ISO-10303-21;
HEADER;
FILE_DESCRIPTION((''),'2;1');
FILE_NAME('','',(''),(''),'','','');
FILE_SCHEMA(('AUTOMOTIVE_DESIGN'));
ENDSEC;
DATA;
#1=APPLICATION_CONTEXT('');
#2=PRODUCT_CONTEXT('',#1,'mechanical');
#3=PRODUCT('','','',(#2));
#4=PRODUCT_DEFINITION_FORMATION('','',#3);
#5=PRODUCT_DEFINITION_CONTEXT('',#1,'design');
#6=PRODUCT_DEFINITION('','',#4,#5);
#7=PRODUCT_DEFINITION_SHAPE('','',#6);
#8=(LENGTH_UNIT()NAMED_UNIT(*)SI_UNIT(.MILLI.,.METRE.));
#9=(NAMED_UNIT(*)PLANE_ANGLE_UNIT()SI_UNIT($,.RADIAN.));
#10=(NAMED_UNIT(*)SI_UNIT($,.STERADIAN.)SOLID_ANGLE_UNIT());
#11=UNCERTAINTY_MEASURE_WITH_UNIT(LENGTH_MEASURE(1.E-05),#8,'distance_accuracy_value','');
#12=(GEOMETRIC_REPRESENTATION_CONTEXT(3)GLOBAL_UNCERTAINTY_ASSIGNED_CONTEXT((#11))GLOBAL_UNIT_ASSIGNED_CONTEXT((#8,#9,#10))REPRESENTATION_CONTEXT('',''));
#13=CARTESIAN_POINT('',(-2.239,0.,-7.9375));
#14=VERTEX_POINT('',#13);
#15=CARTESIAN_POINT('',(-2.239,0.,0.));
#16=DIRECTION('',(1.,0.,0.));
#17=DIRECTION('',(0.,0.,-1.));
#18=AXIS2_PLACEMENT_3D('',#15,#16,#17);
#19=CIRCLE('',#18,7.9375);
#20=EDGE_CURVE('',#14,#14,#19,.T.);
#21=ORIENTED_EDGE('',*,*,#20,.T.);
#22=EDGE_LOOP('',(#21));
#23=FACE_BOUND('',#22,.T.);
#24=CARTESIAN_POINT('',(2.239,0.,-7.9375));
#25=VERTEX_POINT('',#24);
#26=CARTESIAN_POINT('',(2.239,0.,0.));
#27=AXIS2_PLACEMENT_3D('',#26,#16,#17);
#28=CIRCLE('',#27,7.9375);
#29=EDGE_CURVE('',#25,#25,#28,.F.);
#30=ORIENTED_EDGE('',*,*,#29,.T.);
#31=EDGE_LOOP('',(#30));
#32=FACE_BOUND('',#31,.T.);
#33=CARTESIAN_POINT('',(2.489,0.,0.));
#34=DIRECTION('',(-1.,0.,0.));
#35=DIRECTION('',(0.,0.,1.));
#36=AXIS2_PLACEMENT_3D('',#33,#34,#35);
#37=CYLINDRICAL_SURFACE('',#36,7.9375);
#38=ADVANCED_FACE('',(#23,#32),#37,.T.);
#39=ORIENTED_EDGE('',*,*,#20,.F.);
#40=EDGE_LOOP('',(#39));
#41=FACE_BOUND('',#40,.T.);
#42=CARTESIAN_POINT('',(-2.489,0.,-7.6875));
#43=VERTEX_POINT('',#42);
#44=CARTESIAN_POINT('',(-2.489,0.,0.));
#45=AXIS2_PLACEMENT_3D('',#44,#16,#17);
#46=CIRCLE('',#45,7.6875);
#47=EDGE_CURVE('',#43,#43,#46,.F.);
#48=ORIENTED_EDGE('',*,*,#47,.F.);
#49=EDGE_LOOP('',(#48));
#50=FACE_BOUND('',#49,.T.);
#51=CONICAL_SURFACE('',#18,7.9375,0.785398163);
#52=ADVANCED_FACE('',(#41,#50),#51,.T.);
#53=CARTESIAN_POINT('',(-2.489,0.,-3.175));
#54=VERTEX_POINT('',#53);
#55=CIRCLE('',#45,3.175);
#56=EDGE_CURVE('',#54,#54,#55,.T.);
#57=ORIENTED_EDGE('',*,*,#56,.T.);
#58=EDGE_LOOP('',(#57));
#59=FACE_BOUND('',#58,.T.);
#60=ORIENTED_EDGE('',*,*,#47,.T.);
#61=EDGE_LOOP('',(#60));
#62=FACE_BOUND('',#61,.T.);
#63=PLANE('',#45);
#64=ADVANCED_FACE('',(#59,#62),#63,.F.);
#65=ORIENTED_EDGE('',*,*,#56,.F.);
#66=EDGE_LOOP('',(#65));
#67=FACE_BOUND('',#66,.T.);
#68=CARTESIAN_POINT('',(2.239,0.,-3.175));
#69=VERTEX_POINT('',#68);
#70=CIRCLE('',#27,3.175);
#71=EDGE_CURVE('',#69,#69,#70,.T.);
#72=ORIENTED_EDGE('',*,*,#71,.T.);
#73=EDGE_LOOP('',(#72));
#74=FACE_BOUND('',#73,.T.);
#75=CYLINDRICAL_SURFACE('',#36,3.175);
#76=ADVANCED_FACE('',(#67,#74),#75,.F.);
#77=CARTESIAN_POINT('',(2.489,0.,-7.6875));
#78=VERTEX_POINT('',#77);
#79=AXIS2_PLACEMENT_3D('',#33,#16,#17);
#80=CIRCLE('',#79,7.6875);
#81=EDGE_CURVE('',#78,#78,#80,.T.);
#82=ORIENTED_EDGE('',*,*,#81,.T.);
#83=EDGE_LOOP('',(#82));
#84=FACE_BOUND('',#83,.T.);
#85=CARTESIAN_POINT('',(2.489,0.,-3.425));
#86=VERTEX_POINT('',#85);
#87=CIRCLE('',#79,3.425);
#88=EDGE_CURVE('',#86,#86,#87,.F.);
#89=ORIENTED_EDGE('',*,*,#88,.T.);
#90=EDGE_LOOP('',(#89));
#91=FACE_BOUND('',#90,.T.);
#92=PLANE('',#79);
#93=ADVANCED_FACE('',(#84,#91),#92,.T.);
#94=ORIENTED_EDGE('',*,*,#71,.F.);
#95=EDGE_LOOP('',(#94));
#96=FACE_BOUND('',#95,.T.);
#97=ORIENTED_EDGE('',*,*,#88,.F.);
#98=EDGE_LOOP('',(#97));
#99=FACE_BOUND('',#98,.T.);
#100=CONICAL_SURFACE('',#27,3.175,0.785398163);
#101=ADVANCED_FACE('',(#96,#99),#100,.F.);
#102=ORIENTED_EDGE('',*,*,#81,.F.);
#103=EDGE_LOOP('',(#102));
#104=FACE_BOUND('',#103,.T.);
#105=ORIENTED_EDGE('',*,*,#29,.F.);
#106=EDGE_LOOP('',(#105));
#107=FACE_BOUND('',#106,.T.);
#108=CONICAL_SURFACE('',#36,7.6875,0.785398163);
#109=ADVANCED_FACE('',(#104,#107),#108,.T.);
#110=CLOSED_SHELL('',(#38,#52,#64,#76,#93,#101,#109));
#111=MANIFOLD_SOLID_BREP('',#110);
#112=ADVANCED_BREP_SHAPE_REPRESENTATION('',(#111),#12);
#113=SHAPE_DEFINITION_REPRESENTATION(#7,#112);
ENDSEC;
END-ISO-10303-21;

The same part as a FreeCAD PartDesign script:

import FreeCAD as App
import Part
import Sketcher

V = App.Vector
Q = App.Units.Quantity


def edges_at(feature, points):
    """Names of the edges that pass closest to the given points."""
    edges = feature.Shape.Edges
    near = lambda p: min(range(len(edges)), key=lambda i: edges[i].distToShape(Part.Vertex(*p))[0])
    return sorted({f"Edge{near(p) + 1}" for p in points})

doc = App.newDocument("Part")
body = doc.addObject("PartDesign::Body", "Body")

# Sketch on YZ plane
sketch1 = body.newObject("Sketcher::SketchObject", "Sketch")
sketch1.AttachmentSupport = (doc.getObject("YZ_Plane"), [""])
sketch1.MapMode = "FlatFace"
sketch1.addGeometry([
    Part.Circle(V(0, 0, 0), V(0, 0, 1), 7.9375),
    Part.Circle(V(0, 0, 0), V(0, 0, 1), 3.175),
], False)
sketch1.addConstraint([
    Sketcher.Constraint("Coincident", 0, 3, -1, 1),
    Sketcher.Constraint("Coincident", 1, 3, -1, 1),
    Sketcher.Constraint("Diameter", 1, Q("0.25 in")),
    Sketcher.Constraint("Diameter", 0, Q("0.625 in")),
])
pad1 = body.newObject("PartDesign::Pad", "Pad")
pad1.Profile = sketch1
pad1.Length = 4.978
pad1.Midplane = True
doc.recompute()

chamfer = body.newObject("PartDesign::Chamfer", "Chamfer")
chamfer.Base = (pad1, edges_at(pad1, [(-2.489, 0, 7.938), (2.489, 0, 7.938), (2.489, 0, 3.175)]))
chamfer.Size = 0.25

doc.recompute()
